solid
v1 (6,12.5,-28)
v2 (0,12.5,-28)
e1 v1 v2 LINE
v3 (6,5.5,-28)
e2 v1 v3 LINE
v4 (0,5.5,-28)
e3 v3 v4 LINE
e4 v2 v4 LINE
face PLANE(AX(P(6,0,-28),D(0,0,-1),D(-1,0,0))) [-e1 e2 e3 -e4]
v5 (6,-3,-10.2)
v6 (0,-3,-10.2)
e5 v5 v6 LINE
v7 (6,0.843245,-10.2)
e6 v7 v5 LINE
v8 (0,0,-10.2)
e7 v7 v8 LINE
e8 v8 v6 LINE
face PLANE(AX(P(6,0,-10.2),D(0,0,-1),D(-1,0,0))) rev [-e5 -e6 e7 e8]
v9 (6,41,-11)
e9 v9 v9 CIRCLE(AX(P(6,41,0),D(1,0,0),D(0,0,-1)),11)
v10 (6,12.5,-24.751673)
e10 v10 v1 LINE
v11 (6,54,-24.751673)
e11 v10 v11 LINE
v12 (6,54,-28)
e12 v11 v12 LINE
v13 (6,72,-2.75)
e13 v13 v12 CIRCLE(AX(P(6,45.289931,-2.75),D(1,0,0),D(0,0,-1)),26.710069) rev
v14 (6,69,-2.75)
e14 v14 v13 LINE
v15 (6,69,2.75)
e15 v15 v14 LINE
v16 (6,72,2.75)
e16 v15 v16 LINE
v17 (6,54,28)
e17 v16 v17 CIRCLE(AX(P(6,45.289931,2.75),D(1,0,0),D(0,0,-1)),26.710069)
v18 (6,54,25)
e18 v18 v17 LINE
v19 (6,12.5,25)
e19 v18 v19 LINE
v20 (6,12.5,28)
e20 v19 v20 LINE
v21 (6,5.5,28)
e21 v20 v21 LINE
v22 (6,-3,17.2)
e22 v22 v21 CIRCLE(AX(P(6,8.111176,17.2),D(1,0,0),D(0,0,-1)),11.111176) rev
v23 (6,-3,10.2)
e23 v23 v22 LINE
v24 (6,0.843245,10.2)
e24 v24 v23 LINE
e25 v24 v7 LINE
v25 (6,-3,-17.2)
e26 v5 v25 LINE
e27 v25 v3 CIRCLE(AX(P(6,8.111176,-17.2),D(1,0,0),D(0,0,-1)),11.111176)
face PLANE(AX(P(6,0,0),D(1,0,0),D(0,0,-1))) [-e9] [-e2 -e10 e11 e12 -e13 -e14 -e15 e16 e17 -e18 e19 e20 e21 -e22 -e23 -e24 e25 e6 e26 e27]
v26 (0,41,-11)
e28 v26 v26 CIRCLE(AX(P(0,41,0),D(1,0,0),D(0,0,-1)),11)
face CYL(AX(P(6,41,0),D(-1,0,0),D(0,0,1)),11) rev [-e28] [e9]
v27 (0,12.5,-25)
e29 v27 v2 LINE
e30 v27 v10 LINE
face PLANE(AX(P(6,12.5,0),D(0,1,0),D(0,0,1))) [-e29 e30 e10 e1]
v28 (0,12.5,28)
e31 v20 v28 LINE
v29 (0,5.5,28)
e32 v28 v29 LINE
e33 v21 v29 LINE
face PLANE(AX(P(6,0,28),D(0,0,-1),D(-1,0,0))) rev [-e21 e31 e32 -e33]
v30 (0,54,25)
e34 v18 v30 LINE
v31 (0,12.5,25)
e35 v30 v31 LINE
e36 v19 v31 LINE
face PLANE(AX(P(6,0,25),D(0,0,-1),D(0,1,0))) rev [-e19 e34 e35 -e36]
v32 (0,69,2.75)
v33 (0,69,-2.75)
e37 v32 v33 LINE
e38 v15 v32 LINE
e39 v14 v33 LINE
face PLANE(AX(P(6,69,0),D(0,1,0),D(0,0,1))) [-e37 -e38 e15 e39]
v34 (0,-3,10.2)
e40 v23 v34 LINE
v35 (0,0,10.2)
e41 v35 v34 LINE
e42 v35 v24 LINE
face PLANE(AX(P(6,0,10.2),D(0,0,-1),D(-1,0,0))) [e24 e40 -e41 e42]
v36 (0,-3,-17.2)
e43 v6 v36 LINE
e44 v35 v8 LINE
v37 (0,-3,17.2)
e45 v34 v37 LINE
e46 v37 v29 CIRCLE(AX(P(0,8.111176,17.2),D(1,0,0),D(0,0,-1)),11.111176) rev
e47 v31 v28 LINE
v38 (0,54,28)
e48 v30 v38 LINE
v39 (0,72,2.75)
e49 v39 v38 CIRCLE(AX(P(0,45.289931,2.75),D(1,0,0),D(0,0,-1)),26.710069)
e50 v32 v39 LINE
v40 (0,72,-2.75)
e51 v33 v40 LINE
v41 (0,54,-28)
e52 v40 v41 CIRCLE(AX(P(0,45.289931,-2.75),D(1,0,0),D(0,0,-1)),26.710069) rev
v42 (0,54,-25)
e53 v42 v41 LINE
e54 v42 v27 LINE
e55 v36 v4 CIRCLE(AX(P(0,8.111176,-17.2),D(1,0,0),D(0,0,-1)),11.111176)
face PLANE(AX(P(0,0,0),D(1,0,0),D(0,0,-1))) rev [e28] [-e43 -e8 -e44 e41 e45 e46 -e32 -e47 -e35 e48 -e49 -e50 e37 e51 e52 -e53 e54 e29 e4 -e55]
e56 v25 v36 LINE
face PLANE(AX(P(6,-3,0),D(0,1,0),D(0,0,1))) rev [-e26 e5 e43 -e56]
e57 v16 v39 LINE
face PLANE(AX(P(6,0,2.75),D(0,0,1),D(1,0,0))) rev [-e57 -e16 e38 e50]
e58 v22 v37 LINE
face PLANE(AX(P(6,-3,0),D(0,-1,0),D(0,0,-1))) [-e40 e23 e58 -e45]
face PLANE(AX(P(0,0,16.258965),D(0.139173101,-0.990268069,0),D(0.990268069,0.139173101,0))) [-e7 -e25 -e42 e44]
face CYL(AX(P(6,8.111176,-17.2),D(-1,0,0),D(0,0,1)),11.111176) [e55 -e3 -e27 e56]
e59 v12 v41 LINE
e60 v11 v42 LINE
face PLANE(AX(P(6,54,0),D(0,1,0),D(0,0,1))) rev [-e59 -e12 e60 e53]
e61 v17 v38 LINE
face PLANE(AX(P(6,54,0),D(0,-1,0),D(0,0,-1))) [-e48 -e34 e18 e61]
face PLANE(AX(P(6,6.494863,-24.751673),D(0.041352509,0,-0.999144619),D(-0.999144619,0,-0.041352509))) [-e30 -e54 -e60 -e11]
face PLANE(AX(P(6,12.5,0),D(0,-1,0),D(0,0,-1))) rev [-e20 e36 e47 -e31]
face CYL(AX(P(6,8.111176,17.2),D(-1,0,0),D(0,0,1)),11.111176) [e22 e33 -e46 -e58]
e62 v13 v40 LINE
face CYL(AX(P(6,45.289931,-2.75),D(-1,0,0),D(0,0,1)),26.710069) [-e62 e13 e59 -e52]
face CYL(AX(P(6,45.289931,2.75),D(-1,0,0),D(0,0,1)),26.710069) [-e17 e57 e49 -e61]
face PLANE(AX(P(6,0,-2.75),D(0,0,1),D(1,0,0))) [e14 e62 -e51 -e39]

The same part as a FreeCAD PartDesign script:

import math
import FreeCAD as App
import Part
import Sketcher

V = App.Vector
Q = App.Units.Quantity


def add_polygon(sketch, points):
    """Adds a closed chain of lines whose ends are joined by coincident constraints."""
    first, n = sketch.GeometryCount, len(points)
    for a, b in zip(points, points[1:] + points[:1]):
        sketch.addGeometry(Part.LineSegment(App.Vector(*a, 0), App.Vector(*b, 0)), False)
    for i in range(n):
        sketch.addConstraint(Sketcher.Constraint("Coincident", first + i, 2, first + (i + 1) % n, 1))

doc = App.newDocument("Part")
body = doc.addObject("PartDesign::Body", "Body")

# Sketch on YZ plane
sketch1 = body.newObject("Sketcher::SketchObject", "Sketch")
sketch1.AttachmentSupport = (doc.getObject("YZ_Plane"), [""])
sketch1.MapMode = "FlatFace"
sketch1.addGeometry([
    Part.LineSegment(V(-3, 10.2, 0), V(0, 10.2, 0)),  # 0
    Part.LineSegment(V(0, 10.2, 0), V(0, -10.2, 0)),  # 1
    Part.LineSegment(V(0, -10.2, 0), V(-3, -10.2, 0)),  # 2
    Part.LineSegment(V(-3, -10.2, 0), V(-3, -17.2, 0)),  # 3
    Part.ArcOfCircle(Part.Circle(V(8.1, -17.2, 0), V(0, 0, 1), 11.1), math.radians(180), math.radians(256)),  # 4
    Part.LineSegment(V(5.5, -28, 0), V(12.5, -28, 0)),  # 5
    Part.LineSegment(V(12.5, -28, 0), V(12.5, -25, 0)),  # 6
    Part.LineSegment(V(12.5, -25, 0), V(54, -25, 0)),  # 7
    Part.LineSegment(V(54, -25, 0), V(54, -28, 0)),  # 8
    Part.ArcOfCircle(Part.Circle(V(45.3, -2.7, 0), V(0, 0, 1), 26.7), math.radians(-71), math.radians(0)),  # 9
    Part.LineSegment(V(72, -2.8, 0), V(69, -2.8, 0)),  # 10
    Part.LineSegment(V(69, -2.8, 0), V(69, 2.8, 0)),  # 11
    Part.LineSegment(V(69, 2.8, 0), V(72, 2.8, 0)),  # 12
    Part.ArcOfCircle(Part.Circle(V(45.3, 2.7, 0), V(0, 0, 1), 26.7), math.radians(0), math.radians(71)),  # 13
    Part.LineSegment(V(54, 28, 0), V(54, 25, 0)),  # 14
    Part.LineSegment(V(54, 25, 0), V(12.5, 25, 0)),  # 15
    Part.LineSegment(V(12.5, 25, 0), V(12.5, 28, 0)),  # 16
    Part.LineSegment(V(12.5, 28, 0), V(5.5, 28, 0)),  # 17
    Part.ArcOfCircle(Part.Circle(V(8.1, 17.2, 0), V(0, 0, 1), 11.1), math.radians(104), math.radians(180)),  # 18
    Part.LineSegment(V(-3, 17.2, 0), V(-3, 10.2, 0)),  # 19
    Part.Circle(V(41, 0, 0), V(0, 0, 1), 11),  # 20
], False)
sketch1.addConstraint([
    Sketcher.Constraint("Coincident", 0, 2, 1, 1),
    Sketcher.Constraint("Coincident", 1, 2, 2, 1),
    Sketcher.Constraint("Coincident", 2, 2, 3, 1),
    Sketcher.Constraint("Tangent", 3, 2, 4, 1),
    Sketcher.Constraint("Coincident", 4, 2, 5, 1),
    Sketcher.Constraint("Coincident", 5, 2, 6, 1),
    Sketcher.Constraint("Coincident", 6, 2, 7, 1),
    Sketcher.Constraint("Coincident", 7, 2, 8, 1),
    Sketcher.Constraint("Coincident", 8, 2, 9, 1),
    Sketcher.Constraint("Coincident", 9, 2, 10, 1),
    Sketcher.Constraint("Coincident", 10, 2, 11, 1),
    Sketcher.Constraint("Coincident", 11, 2, 12, 1),
    Sketcher.Constraint("Coincident", 12, 2, 13, 1),
    Sketcher.Constraint("Coincident", 13, 2, 14, 1),
    Sketcher.Constraint("Coincident", 14, 2, 15, 1),
    Sketcher.Constraint("Coincident", 15, 2, 16, 1),
    Sketcher.Constraint("Coincident", 16, 2, 17, 1),
    Sketcher.Constraint("Coincident", 17, 2, 18, 1),
    Sketcher.Constraint("Tangent", 18, 2, 19, 1),
    Sketcher.Constraint("Coincident", 19, 2, 0, 1),
    Sketcher.Constraint("Horizontal", 0),
    Sketcher.Constraint("Vertical", 1),
    Sketcher.Constraint("Horizontal", 2),
    Sketcher.Constraint("Vertical", 3),
    Sketcher.Constraint("Horizontal", 5),
    Sketcher.Constraint("Vertical", 6),
    Sketcher.Constraint("Horizontal", 7),
    Sketcher.Constraint("Vertical", 8),
    Sketcher.Constraint("Horizontal", 10),
    Sketcher.Constraint("Vertical", 11),
    Sketcher.Constraint("Horizontal", 12),
    Sketcher.Constraint("Vertical", 14),
    Sketcher.Constraint("Horizontal", 15),
    Sketcher.Constraint("Vertical", 16),
    Sketcher.Constraint("Horizontal", 17),
    Sketcher.Constraint("Vertical", 19),
    Sketcher.Constraint("Equal", 9, 13),
    Sketcher.Constraint("Equal", 4, 18),
    Sketcher.Constraint("Symmetric", 0, 2, 1, 2, -1, 1),
    Sketcher.Constraint("Symmetric", 9, 3, 13, 3, -1),
    Sketcher.Constraint("Symmetric", 4, 3, 18, 3, -1),
    Sketcher.Constraint("Symmetric", 7, 2, 14, 2, -1),
    Sketcher.Constraint("Symmetric", 5, 2, 16, 2, -1),
    Sketcher.Constraint("PointOnObject", 20, 3, -1),
    Sketcher.Constraint("Horizontal", 5, 2, 8, 2),
    Sketcher.Constraint("Horizontal", 13, 3, 11, 2),
    Sketcher.Constraint("Equal", 2, 10),
    Sketcher.Constraint("Equal", 17, 3),
    Sketcher.Constraint("Equal", 12, 6),
    Sketcher.Constraint("Diameter", 20, Q("22 mm")),
    Sketcher.Constraint("DistanceX", 0, 1, 0, 2, Q("3 mm")),
    Sketcher.Constraint("DistanceX", 5, 1, 5, 2, Q("7 mm")),
    Sketcher.Constraint("DistanceX", 7, 1, 7, 2, Q("41.5 mm")),
    Sketcher.Constraint("DistanceY", 1, 2, 1, 1, Q("20.4 mm")),
    Sketcher.Constraint("DistanceY", 11, 1, 11, 2, Q("5.5 mm")),
    Sketcher.Constraint("DistanceX", -1, 1, 20, 3, Q("41 mm")),
    Sketcher.Constraint("DistanceY", 4, 2, -1, 1, Q("28 mm")),
    Sketcher.Constraint("DistanceX", -1, 1, 7, 2, Q("54 mm")),
    Sketcher.Constraint("DistanceX", -1, 1, 9, 2, Q("72 mm")),
    Sketcher.Constraint("DistanceY", 9, 3, 13, 3, Q("5.5 mm")),
])
pad1 = body.newObject("PartDesign::Pad", "Pad")
pad1.Profile = sketch1
pad1.Length = 6

# Sketch on XZ plane
sketch2 = body.newObject("Sketcher::SketchObject", "Sketch001")
sketch2.AttachmentSupport = (doc.getObject("XZ_Plane"), [""])
sketch2.MapMode = "FlatFace"
sketch2.AttachmentOffset = App.Placement(V(0, 0, -54), App.Rotation())
add_polygon(sketch2, [(0, -25), (6, -25), (6, -24.75)])  # lines 0-2
sketch2.addConstraint([
    Sketcher.Constraint("Horizontal", 0),
    Sketcher.Constraint("Vertical", 1),
    Sketcher.Constraint("PointOnObject", 2, 2, -2),
    Sketcher.Constraint("DistanceX", 0, 1, 0, 2, Q("6 mm")),
    Sketcher.Constraint("DistanceY", 0, 2, -1, 1, Q("25 mm")),
    Sketcher.Constraint("Angle", 2, Q("-177.63 deg")),
])
pocket1 = body.newObject("PartDesign::Pocket", "Pocket")
pocket1.Profile = sketch2
pocket1.Length = 41.5
pocket1.Reversed = True

# Sketch on XY plane
sketch3 = body.newObject("Sketcher::SketchObject", "Sketch002")
sketch3.AttachmentSupport = (doc.getObject("XY_Plane"), [""])
sketch3.MapMode = "FlatFace"
sketch3.AttachmentOffset = App.Placement(V(0, 0, -10.2), App.Rotation())
add_polygon(sketch3, [(0, 0), (6, 0), (6, 0.8)])  # lines 0-2
sketch3.addConstraint([
    Sketcher.Constraint("Horizontal", 0),
    Sketcher.Constraint("Vertical", 1),
    Sketcher.Constraint("Coincident", 2, 2, -1, 1),
    Sketcher.Constraint("DistanceX", 0, 1, 0, 2, Q("6 mm")),
    Sketcher.Constraint("Angle", 2, Q("-172 deg")),
])
pocket2 = body.newObject("PartDesign::Pocket", "Pocket001")
pocket2.Profile = sketch3
pocket2.Length = 20.4
pocket2.Reversed = True

doc.recompute()
